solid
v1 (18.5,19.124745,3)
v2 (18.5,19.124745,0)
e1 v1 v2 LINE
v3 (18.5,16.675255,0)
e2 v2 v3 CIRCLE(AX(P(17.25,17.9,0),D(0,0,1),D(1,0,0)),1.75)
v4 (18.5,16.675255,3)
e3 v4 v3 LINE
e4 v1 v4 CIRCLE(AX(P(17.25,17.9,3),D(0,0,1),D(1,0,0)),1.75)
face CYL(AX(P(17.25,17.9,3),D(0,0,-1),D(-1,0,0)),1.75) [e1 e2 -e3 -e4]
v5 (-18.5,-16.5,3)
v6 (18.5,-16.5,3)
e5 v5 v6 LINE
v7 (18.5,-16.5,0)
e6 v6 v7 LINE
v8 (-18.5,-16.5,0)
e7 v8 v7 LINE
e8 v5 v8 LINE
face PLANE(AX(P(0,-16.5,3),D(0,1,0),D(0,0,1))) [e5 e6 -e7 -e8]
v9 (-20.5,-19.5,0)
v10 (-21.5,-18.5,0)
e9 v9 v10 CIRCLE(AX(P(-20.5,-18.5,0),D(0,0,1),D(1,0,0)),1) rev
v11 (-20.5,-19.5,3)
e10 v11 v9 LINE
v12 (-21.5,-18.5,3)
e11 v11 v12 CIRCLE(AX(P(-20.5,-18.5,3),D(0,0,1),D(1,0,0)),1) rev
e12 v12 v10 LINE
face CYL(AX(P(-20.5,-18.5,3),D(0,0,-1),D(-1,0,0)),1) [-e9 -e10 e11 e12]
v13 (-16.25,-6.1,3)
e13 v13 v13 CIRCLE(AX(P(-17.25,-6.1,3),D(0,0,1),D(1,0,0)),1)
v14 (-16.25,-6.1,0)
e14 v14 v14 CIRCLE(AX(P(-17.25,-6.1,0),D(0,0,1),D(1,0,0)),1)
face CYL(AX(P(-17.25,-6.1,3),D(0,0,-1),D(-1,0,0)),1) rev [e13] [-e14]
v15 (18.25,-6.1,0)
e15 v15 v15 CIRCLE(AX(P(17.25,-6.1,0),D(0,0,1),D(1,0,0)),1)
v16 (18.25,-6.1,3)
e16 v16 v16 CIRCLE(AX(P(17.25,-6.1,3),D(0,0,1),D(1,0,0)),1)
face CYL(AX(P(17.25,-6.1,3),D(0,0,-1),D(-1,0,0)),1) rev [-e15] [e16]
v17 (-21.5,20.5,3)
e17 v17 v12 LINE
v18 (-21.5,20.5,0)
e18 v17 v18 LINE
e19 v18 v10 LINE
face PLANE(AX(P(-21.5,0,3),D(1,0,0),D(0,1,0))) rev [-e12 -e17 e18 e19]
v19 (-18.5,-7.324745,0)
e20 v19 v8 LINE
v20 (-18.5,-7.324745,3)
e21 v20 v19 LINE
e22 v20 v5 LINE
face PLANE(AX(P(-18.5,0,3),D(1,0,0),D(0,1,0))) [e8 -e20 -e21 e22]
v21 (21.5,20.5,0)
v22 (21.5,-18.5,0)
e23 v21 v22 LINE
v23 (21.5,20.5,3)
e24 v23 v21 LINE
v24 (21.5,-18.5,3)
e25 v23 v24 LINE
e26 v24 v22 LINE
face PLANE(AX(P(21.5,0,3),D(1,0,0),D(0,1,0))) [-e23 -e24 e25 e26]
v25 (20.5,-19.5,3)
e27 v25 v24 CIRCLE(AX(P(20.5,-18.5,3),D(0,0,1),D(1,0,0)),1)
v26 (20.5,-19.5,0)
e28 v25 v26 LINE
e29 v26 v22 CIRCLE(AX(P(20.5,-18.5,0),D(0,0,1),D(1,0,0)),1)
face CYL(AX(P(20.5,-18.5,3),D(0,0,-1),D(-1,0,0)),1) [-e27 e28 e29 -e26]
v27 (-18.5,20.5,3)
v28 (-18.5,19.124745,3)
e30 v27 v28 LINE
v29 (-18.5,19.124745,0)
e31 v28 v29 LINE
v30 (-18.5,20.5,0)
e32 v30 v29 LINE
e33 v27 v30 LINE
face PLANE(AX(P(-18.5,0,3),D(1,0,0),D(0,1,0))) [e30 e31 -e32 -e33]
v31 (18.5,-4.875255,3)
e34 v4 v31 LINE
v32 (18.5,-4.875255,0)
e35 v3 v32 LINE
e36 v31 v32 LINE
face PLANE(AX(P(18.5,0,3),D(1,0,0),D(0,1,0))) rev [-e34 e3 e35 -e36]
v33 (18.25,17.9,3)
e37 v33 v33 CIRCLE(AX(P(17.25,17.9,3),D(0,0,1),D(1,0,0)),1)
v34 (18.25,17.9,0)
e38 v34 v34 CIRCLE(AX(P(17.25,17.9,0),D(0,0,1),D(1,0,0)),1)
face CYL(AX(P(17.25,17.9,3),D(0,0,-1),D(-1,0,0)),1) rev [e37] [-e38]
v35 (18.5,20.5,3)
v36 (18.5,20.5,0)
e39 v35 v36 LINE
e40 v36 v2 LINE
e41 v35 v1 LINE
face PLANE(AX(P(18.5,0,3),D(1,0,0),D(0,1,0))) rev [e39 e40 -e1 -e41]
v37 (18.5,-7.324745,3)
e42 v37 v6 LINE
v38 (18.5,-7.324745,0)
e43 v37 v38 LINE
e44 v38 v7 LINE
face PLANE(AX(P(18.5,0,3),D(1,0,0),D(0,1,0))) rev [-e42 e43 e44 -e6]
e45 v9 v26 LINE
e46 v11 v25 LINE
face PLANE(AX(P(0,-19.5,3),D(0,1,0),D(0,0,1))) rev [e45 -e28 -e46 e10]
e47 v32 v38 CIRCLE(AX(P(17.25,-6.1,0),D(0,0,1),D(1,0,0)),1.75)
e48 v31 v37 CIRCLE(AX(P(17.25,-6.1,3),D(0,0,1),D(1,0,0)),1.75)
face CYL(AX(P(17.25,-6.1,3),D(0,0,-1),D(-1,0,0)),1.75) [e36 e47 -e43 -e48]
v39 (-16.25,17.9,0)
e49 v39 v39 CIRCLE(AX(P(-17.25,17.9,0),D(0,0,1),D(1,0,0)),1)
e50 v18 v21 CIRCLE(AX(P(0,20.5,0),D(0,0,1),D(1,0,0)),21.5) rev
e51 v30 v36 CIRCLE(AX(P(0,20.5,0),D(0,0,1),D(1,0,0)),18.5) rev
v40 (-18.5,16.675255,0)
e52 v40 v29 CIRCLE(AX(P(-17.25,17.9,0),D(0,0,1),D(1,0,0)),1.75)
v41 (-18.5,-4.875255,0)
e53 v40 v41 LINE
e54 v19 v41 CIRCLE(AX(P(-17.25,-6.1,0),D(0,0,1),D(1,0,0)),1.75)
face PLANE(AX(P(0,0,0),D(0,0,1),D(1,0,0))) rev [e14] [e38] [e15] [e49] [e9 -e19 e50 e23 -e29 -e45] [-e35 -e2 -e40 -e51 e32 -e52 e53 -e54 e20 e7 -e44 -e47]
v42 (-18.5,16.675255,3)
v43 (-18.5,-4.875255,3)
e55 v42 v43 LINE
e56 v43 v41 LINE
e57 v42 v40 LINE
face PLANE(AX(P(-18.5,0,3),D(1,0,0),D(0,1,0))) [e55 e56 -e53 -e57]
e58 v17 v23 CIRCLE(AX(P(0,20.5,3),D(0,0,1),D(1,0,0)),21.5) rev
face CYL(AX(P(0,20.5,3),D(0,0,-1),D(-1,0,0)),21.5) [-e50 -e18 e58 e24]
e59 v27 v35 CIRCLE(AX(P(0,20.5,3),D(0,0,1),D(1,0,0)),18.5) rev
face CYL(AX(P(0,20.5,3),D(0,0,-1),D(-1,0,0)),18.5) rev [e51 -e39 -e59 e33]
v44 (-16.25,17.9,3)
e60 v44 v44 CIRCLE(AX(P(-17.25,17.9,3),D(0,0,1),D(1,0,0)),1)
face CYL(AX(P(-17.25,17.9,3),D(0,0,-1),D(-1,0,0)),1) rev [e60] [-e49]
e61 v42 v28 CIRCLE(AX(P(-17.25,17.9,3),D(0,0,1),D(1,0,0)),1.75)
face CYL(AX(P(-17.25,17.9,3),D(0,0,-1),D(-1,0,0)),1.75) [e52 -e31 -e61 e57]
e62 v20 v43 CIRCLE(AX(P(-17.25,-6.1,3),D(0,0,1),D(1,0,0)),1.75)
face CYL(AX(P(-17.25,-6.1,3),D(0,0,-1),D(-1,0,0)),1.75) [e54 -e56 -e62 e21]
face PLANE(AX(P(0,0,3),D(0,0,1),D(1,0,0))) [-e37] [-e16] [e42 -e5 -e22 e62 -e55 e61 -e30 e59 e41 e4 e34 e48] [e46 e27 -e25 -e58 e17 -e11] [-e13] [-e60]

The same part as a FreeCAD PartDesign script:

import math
import FreeCAD as App
import Part
import Sketcher

V = App.Vector

doc = App.newDocument("Part")
body = doc.addObject("PartDesign::Body", "Body")

# Sketch on XY plane
sketch1 = body.newObject("Sketcher::SketchObject", "Sketch")
sketch1.AttachmentSupport = (doc.getObject("XY_Plane"), [""])
sketch1.MapMode = "FlatFace"
sketch1.addGeometry([
    Part.ArcOfCircle(Part.Circle(V(0, 20.5, 0), V(0, 0, 1), 21.5), math.radians(0), math.radians(180)),  # 0
    Part.LineSegment(V(-21.5, 20.5, 0), V(-21.5, -18.5, 0)),  # 1
    Part.ArcOfCircle(Part.Circle(V(-20.5, -18.5, 0), V(0, 0, 1), 1), math.radians(-180), math.radians(-90)),  # 2
    Part.LineSegment(V(-20.5, -19.5, 0), V(20.5, -19.5, 0)),  # 3
    Part.ArcOfCircle(Part.Circle(V(20.5, -18.5, 0), V(0, 0, 1), 1), math.radians(-90), math.radians(0)),  # 4
    Part.LineSegment(V(21.5, -18.5, 0), V(21.5, 20.5, 0)),  # 5
    Part.Circle(V(-17.25, -6.1, 0), V(0, 0, 1), 1),  # 6
    Part.Circle(V(17.25, -6.1, 0), V(0, 0, 1), 1),  # 7
    Part.Circle(V(-17.25, 17.9, 0), V(0, 0, 1), 1),  # 8
    Part.LineSegment(V(-18.5, -16.5, 0), V(-18.5, -7.324745, 0)),  # 9
    Part.ArcOfCircle(Part.Circle(V(-17.25, -6.1, 0), V(0, 0, 1), 1.75), math.radians(-135.584691), math.radians(90)),  # 10
    Part.ArcOfCircle(Part.Circle(V(-17.25, -6.1, 0), V(0, 0, 1), 1.75), math.radians(90), math.radians(135.584691)),  # 11
    Part.LineSegment(V(-18.5, -4.875255, 0), V(-18.5, 16.675255, 0)),  # 12
    Part.ArcOfCircle(Part.Circle(V(-17.25, 17.9, 0), V(0, 0, 1), 1.75), math.radians(-135.584691), math.radians(-90)),  # 13
    Part.ArcOfCircle(Part.Circle(V(-17.25, 17.9, 0), V(0, 0, 1), 1.75), math.radians(-90), math.radians(135.584691)),  # 14
    Part.LineSegment(V(-18.5, 19.124745, 0), V(-18.5, 20.5, 0)),  # 15
    Part.ArcOfCircle(Part.Circle(V(0, 20.5, 0), V(0, 0, 1), 18.5), math.radians(0), math.radians(180)),  # 16
    Part.LineSegment(V(18.5, 20.5, 0), V(18.5, 19.124745, 0)),  # 17
    Part.ArcOfCircle(Part.Circle(V(17.25, 17.9, 0), V(0, 0, 1), 1.75), math.radians(44.415309), math.radians(270)),  # 18
    Part.ArcOfCircle(Part.Circle(V(17.25, 17.9, 0), V(0, 0, 1), 1.75), math.radians(-90), math.radians(-44.415309)),  # 19
    Part.LineSegment(V(18.5, 16.675255, 0), V(18.5, -4.875255, 0)),  # 20
    Part.ArcOfCircle(Part.Circle(V(17.25, -6.1, 0), V(0, 0, 1), 1.75), math.radians(44.415309), math.radians(90)),  # 21
    Part.ArcOfCircle(Part.Circle(V(17.25, -6.1, 0), V(0, 0, 1), 1.75), math.radians(90), math.radians(315.584691)),  # 22
    Part.LineSegment(V(18.5, -7.324745, 0), V(18.5, -16.5, 0)),  # 23
    Part.LineSegment(V(18.5, -16.5, 0), V(-18.5, -16.5, 0)),  # 24
    Part.Circle(V(17.25, 17.9, 0), V(0, 0, 1), 1),  # 25
], False)
sketch1.addConstraint([
    Sketcher.Constraint("Tangent", 0, 2, 1, 1),
    Sketcher.Constraint("Tangent", 1, 2, 2, 1),
    Sketcher.Constraint("Tangent", 2, 2, 3, 1),
    Sketcher.Constraint("Tangent", 3, 2, 4, 1),
    Sketcher.Constraint("Tangent", 4, 2, 5, 1),
    Sketcher.Constraint("Tangent", 5, 2, 0, 1),
    Sketcher.Constraint("Coincident", 9, 2, 10, 1),
    Sketcher.Constraint("Tangent", 10, 2, 11, 1),
    Sketcher.Constraint("Coincident", 11, 2, 12, 1),
    Sketcher.Constraint("Coincident", 12, 2, 13, 1),
    Sketcher.Constraint("Tangent", 13, 2, 14, 1),
    Sketcher.Constraint("Coincident", 14, 2, 15, 1),
    Sketcher.Constraint("Tangent", 15, 2, 16, 2),
    Sketcher.Constraint("Tangent", 16, 1, 17, 1),
    Sketcher.Constraint("Coincident", 17, 2, 18, 1),
    Sketcher.Constraint("Tangent", 18, 2, 19, 1),
    Sketcher.Constraint("Coincident", 19, 2, 20, 1),
    Sketcher.Constraint("Coincident", 20, 2, 21, 1),
    Sketcher.Constraint("Tangent", 21, 2, 22, 1),
    Sketcher.Constraint("Coincident", 22, 2, 23, 1),
    Sketcher.Constraint("Coincident", 23, 2, 24, 1),
    Sketcher.Constraint("Coincident", 24, 2, 9, 1),
    Sketcher.Constraint("Vertical", 1),
    Sketcher.Constraint("Horizontal", 3),
    Sketcher.Constraint("Vertical", 5),
    Sketcher.Constraint("Vertical", 9),
    Sketcher.Constraint("Vertical", 12),
    Sketcher.Constraint("Vertical", 15),
    Sketcher.Constraint("Vertical", 17),
    Sketcher.Constraint("Vertical", 20),
    Sketcher.Constraint("Vertical", 23),
    Sketcher.Constraint("Horizontal", 24),
    Sketcher.Constraint("Coincident", 10, 3, 6, 3),
    Sketcher.Constraint("Coincident", 13, 3, 8, 3),
    Sketcher.Constraint("Coincident", 16, 3, 0, 3),
    Sketcher.Constraint("Coincident", 21, 3, 7, 3),
    Sketcher.Constraint("Coincident", 25, 3, 18, 3),
    Sketcher.Constraint("Equal", 2, 4),
    Sketcher.Constraint("Equal", 4, 6),
    Sketcher.Constraint("Equal", 6, 7),
    Sketcher.Constraint("Equal", 7, 8),
    Sketcher.Constraint("Equal", 10, 11),
    Sketcher.Constraint("Equal", 11, 13),
    Sketcher.Constraint("Equal", 13, 14),
    Sketcher.Constraint("Equal", 14, 18),
    Sketcher.Constraint("Equal", 18, 19),
    Sketcher.Constraint("Equal", 19, 21),
    Sketcher.Constraint("Equal", 21, 22),
    Sketcher.Constraint("Equal", 8, 25),
    Sketcher.Constraint("Symmetric", 6, 3, 7, 3, -2),
    Sketcher.Constraint("Symmetric", 8, 3, 18, 3, -2),
    Sketcher.Constraint("PointOnObject", 0, 3, -2),
    Sketcher.Constraint("Horizontal", 12, 2, 19, 2),
    Sketcher.Constraint("Horizontal", 9, 2, 22, 2),
    Sketcher.Constraint("Vertical", 6, 3, 8, 3),
    Sketcher.Constraint("Vertical", 14, 3, 10, 2),
    Sketcher.Constraint("Vertical", 9, 2, 11, 2),
    Sketcher.Constraint("Vertical", 10, 2, 13, 2),
    Sketcher.Constraint("Vertical", 12, 2, 14, 2),
    Sketcher.Constraint("Vertical", 25, 3, 18, 2),
    Sketcher.Constraint("Vertical", 18, 2, 21, 2),
    Sketcher.Constraint("Diameter", 6, 2.0),
    Sketcher.Constraint("Radius", 0, 21.5),
    Sketcher.Constraint("Radius", 16, 18.5),
    Sketcher.Constraint("DistanceY", 1, 2, 1, 1, 39.0),
    Sketcher.Constraint("Radius", 10, 1.75),
    Sketcher.Constraint("DistanceY", 6, 3, 8, 3, 24.0),
    Sketcher.Constraint("DistanceY", 4, 3, 23, 2, 2.0),
    Sketcher.Constraint("DistanceY", -1, 1, 0, 3, 20.5),
    Sketcher.Constraint("DistanceY", 6, 3, -1, 1, 6.1),
    Sketcher.Constraint("DistanceX", 6, 3, 7, 3, 34.5),
])
pad1 = body.newObject("PartDesign::Pad", "Pad")
pad1.Profile = sketch1
pad1.Length = 3

doc.recompute()
